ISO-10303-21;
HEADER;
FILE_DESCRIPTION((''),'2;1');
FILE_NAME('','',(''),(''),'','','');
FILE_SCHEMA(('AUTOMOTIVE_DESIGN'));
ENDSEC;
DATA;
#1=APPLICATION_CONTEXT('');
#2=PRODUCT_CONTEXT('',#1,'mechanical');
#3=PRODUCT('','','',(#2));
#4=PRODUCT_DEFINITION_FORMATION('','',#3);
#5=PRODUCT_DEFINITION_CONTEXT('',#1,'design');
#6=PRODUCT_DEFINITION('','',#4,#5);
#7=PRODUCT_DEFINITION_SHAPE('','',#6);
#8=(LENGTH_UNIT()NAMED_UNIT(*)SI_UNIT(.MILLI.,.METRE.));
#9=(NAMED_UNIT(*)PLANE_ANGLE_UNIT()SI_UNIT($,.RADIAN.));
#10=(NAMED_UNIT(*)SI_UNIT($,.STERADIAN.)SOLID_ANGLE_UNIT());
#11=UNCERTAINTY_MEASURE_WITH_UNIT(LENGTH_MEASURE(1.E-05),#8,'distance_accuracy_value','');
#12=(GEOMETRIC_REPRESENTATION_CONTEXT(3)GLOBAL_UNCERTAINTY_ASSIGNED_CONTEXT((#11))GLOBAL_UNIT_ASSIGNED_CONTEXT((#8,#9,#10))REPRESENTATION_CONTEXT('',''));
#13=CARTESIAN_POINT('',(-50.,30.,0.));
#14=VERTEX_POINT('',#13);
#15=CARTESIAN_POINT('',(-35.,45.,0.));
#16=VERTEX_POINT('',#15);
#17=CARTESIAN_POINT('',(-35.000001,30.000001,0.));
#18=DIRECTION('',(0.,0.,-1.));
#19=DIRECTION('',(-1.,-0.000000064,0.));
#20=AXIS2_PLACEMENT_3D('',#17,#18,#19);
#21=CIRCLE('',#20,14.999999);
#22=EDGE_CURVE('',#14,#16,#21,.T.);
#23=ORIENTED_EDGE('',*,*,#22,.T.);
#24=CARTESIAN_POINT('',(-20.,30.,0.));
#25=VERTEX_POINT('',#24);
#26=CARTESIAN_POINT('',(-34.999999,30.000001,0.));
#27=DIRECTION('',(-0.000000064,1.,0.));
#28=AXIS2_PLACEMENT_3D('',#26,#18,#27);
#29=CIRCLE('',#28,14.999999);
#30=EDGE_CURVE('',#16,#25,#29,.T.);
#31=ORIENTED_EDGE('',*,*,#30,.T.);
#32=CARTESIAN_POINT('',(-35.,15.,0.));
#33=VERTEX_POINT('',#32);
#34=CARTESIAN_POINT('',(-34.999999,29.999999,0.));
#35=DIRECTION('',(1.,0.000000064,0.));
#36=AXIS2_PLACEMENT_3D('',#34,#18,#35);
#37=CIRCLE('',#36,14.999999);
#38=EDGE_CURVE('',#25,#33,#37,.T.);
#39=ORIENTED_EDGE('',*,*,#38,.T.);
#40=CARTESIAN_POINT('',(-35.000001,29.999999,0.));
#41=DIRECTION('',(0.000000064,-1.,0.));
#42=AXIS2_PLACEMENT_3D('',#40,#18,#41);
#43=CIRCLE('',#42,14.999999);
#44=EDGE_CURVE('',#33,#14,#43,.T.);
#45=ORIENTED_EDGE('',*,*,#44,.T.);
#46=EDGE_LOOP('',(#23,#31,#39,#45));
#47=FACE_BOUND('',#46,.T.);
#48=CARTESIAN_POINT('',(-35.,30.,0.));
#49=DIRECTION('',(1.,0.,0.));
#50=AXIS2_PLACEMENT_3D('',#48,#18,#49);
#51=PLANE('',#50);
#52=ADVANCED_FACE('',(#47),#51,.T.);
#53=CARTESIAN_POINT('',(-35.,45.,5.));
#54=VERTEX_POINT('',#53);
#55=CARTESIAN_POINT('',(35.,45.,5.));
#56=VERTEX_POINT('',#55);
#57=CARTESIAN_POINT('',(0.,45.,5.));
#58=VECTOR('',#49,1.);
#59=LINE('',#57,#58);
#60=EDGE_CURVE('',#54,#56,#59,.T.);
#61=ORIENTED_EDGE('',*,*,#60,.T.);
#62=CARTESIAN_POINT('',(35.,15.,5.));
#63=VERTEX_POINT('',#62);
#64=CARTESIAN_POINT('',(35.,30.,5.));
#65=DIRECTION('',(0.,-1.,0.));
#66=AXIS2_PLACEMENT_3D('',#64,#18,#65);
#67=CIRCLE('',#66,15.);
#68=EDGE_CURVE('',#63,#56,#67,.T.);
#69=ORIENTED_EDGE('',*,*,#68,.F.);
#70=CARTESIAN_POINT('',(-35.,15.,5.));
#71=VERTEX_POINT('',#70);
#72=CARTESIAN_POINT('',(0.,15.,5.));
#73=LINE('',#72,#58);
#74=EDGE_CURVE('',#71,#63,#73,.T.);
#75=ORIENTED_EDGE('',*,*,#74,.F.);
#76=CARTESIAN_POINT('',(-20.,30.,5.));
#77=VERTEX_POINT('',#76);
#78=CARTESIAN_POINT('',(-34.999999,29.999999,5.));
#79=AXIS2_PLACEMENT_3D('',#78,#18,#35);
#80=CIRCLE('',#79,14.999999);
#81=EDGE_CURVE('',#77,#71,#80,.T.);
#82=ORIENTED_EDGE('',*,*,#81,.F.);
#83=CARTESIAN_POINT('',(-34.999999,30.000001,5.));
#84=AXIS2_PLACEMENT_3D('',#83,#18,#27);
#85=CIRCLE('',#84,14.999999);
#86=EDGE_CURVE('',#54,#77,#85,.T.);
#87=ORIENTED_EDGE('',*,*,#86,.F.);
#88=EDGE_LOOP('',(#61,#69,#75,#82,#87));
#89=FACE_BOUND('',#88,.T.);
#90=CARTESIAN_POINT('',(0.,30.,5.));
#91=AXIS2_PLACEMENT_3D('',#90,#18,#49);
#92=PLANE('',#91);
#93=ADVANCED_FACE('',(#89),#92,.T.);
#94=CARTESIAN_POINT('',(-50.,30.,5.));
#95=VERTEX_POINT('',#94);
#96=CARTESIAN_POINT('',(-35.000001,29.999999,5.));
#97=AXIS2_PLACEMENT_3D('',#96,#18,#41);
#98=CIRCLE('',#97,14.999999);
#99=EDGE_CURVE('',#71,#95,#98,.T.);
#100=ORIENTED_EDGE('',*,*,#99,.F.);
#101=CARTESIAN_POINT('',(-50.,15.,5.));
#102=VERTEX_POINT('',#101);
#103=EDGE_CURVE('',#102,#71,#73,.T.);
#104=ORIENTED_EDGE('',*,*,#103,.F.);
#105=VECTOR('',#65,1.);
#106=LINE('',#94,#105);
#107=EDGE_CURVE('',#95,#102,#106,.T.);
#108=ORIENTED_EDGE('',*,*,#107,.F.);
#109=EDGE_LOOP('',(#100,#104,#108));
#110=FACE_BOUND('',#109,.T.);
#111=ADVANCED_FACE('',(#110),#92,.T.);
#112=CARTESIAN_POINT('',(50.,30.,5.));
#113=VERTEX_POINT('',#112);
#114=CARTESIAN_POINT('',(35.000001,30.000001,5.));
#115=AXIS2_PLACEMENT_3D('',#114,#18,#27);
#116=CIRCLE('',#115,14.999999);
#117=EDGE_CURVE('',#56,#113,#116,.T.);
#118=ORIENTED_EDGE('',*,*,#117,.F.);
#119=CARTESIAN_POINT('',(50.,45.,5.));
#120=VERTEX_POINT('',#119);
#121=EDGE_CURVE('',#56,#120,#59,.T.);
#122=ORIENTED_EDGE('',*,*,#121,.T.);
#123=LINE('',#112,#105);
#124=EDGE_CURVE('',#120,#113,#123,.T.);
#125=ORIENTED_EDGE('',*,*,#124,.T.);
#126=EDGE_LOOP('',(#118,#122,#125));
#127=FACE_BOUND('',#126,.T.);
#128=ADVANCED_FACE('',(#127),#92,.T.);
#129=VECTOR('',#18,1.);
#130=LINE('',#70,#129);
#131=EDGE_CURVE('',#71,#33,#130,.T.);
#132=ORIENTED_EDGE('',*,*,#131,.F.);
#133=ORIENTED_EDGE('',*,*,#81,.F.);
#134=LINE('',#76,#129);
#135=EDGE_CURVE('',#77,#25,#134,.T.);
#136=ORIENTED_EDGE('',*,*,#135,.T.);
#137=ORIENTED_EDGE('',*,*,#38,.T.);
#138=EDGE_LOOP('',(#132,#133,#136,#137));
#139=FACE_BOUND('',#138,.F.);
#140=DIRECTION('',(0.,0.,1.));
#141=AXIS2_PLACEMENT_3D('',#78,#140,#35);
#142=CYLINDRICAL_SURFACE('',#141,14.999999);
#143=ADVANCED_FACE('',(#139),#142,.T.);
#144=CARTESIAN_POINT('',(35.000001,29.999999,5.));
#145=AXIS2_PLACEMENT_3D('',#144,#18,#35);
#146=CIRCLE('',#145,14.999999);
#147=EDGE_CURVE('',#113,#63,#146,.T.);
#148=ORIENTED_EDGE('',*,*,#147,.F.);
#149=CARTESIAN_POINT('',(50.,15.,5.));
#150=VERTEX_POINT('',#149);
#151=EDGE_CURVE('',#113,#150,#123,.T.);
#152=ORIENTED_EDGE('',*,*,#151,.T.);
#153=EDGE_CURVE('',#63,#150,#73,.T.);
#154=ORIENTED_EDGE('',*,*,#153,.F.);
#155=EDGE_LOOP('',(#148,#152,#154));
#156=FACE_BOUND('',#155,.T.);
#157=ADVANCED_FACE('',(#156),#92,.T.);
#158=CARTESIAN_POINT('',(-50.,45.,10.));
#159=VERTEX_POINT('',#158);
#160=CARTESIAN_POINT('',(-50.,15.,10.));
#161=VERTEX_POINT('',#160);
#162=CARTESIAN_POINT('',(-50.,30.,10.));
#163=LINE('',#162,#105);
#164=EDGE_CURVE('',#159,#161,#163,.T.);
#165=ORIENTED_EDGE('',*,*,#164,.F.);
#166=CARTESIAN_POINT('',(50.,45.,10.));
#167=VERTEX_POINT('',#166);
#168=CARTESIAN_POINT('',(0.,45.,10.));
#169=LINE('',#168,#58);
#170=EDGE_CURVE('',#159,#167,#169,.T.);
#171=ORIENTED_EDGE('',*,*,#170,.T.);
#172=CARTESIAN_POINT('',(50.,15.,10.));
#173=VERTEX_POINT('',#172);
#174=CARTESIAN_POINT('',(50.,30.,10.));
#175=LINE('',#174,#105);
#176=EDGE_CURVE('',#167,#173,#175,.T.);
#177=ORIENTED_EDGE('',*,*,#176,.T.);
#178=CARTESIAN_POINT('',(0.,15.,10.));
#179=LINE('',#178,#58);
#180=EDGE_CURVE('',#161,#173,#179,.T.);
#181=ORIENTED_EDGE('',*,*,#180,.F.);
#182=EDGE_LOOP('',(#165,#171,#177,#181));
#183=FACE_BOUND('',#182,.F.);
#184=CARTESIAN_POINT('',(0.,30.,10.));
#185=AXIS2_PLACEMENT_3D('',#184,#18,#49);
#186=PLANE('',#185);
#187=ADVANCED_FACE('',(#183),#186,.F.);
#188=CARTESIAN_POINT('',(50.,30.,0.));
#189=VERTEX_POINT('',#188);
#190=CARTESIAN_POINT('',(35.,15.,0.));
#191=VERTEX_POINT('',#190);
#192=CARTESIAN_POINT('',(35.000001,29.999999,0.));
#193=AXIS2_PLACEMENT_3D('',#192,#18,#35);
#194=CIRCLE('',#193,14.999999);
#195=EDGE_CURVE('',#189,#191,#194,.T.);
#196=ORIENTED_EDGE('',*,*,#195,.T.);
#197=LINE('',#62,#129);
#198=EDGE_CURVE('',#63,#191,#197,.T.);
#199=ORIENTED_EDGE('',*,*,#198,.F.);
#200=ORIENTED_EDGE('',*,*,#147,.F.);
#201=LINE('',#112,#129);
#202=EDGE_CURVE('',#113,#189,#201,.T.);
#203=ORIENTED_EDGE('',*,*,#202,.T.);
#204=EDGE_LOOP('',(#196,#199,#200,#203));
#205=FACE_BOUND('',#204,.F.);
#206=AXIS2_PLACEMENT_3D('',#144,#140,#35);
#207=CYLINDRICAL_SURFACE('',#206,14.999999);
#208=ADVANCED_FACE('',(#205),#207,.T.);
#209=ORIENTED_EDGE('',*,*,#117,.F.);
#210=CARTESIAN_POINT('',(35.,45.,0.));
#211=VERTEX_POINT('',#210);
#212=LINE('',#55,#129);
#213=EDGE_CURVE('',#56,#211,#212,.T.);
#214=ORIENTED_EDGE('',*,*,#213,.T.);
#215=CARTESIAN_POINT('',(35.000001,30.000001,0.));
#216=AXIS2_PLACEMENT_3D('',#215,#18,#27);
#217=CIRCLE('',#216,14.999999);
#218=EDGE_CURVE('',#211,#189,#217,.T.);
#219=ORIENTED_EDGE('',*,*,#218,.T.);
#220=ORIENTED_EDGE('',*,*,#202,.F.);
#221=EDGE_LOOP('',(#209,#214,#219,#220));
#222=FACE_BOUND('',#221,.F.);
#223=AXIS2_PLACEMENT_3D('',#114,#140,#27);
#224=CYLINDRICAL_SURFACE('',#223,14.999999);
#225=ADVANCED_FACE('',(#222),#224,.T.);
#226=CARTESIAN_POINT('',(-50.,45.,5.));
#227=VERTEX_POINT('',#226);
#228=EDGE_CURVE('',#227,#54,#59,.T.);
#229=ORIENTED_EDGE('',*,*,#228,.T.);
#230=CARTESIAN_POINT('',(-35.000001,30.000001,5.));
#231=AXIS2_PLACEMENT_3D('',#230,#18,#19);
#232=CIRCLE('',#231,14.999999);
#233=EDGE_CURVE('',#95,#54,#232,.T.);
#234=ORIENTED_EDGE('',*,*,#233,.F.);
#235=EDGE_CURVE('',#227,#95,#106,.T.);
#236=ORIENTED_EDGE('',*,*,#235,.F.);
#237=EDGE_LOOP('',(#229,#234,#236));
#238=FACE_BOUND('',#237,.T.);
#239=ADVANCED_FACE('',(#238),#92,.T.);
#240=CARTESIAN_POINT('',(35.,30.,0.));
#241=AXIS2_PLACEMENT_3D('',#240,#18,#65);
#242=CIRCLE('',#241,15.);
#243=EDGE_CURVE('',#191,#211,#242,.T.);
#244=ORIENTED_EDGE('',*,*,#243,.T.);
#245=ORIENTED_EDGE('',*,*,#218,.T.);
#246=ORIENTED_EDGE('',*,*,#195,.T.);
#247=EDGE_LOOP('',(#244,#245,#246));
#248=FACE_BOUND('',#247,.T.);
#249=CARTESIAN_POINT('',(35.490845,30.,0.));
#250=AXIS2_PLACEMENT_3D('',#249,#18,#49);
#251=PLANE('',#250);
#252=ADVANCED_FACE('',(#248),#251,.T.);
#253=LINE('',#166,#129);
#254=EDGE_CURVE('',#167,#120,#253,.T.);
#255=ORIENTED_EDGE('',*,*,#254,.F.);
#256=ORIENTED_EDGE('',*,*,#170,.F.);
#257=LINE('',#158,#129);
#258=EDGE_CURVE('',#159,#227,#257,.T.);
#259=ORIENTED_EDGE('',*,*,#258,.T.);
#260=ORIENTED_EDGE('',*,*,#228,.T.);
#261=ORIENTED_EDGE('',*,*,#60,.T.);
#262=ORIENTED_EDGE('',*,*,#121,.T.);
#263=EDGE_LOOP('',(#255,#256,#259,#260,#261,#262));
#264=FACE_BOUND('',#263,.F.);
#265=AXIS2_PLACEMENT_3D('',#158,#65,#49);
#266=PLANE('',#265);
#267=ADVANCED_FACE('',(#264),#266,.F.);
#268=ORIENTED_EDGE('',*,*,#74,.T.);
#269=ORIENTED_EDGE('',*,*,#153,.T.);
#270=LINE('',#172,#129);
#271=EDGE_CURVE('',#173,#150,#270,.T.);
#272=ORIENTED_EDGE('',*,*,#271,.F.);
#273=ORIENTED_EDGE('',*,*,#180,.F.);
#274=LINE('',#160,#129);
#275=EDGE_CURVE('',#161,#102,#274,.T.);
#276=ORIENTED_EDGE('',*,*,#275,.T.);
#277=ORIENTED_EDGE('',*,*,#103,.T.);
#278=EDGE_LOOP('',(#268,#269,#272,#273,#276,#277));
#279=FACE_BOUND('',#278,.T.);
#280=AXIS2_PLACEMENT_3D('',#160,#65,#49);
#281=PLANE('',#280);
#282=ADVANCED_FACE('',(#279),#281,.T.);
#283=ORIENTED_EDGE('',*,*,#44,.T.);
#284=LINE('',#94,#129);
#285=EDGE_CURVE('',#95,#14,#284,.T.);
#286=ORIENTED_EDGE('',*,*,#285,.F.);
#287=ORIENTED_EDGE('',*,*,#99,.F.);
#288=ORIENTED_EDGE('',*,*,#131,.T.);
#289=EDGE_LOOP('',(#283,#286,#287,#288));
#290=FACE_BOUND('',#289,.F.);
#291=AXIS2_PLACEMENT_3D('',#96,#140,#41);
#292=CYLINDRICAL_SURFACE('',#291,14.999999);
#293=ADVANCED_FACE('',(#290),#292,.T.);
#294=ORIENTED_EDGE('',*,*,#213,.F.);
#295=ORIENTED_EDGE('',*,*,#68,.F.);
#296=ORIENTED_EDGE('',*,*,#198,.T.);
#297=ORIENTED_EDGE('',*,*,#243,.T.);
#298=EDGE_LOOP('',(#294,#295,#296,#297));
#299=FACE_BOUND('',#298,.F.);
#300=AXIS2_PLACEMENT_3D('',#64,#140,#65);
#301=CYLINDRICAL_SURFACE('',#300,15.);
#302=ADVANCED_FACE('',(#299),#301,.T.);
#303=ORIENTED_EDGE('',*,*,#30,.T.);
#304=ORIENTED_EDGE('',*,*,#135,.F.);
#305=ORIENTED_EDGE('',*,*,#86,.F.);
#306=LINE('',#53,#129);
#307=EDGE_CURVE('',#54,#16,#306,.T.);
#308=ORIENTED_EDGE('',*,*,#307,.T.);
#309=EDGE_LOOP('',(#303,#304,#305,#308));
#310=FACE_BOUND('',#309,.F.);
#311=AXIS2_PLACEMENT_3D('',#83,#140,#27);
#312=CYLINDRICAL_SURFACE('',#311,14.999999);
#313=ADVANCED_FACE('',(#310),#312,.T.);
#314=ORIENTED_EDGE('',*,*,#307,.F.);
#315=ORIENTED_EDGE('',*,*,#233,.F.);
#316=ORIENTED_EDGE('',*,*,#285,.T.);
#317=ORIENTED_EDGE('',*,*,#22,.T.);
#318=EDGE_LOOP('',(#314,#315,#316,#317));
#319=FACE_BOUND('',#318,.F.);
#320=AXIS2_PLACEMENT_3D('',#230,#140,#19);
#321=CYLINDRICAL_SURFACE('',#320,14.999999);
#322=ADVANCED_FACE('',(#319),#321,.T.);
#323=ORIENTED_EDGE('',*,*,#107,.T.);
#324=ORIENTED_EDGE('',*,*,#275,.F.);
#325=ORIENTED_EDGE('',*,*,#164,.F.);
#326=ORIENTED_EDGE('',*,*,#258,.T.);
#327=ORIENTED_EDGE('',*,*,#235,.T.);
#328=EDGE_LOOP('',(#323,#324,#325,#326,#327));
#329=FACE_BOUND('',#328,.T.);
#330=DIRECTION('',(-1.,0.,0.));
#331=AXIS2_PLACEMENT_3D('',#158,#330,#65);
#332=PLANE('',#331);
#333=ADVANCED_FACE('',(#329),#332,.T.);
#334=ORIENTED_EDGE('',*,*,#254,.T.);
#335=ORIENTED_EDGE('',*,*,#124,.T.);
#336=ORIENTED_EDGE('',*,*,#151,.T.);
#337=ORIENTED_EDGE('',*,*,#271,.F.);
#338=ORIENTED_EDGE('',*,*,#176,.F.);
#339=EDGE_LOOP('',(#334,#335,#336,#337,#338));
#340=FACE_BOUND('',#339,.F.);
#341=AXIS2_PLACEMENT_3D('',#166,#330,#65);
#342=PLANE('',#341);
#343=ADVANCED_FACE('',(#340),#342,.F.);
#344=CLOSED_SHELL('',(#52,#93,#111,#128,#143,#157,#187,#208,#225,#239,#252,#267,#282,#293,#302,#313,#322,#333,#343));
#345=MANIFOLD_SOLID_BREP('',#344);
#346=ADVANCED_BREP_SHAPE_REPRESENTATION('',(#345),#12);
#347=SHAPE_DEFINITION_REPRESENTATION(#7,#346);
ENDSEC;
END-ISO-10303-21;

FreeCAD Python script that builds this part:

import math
import FreeCAD as App
import Part
import Sketcher
from FreeCAD import Vector
Q = App.Units.Quantity

doc = App.newDocument("Part")
body = doc.addObject("PartDesign::Body", "Body")

# Sketch on XY plane
sketch1 = body.newObject("Sketcher::SketchObject", "Sketch")
sketch1.AttachmentSupport = (doc.getObject("XY_Plane"), [""])
sketch1.MapMode = "FlatFace"
sketch1.addGeometry(Part.LineSegment(Vector(-50, 15, 0), Vector(-50, -15, 0)), False)
sketch1.addGeometry(Part.LineSegment(Vector(-50, -15, 0), Vector(50, -15, 0)), False)
sketch1.addGeometry(Part.LineSegment(Vector(50, -15, 0), Vector(50, 15, 0)), False)
sketch1.addGeometry(Part.LineSegment(Vector(50, 15, 0), Vector(-50, 15, 0)), False)
sketch1.addConstraint(Sketcher.Constraint("Coincident", 0, 2, 1, 1))
sketch1.addConstraint(Sketcher.Constraint("Coincident", 1, 2, 2, 1))
sketch1.addConstraint(Sketcher.Constraint("Coincident", 2, 2, 3, 1))
sketch1.addConstraint(Sketcher.Constraint("Coincident", 3, 2, 0, 1))
sketch1.addConstraint(Sketcher.Constraint("Vertical", 0))
sketch1.addConstraint(Sketcher.Constraint("Horizontal", 1))
sketch1.addConstraint(Sketcher.Constraint("Vertical", 2))
sketch1.addConstraint(Sketcher.Constraint("Horizontal", 3))
sketch1.addConstraint(Sketcher.Constraint("Symmetric", 0, 2, 2, 2, -1, 1))
sketch1.addConstraint(Sketcher.Constraint("DistanceX", 1, 1, 1, 2, Q("100 mm")))
sketch1.addConstraint(Sketcher.Constraint("DistanceY", 0, 2, 0, 1, Q("30 mm")))
pad1 = body.newObject("PartDesign::Pad", "Pad")
pad1.Profile = sketch1
pad1.Length = 5

# Sketch on XY plane
sketch2 = body.newObject("Sketcher::SketchObject", "Sketch001")
sketch2.AttachmentSupport = (doc.getObject("XY_Plane"), [""])
sketch2.MapMode = "FlatFace"
sketch2.AttachmentOffset = App.Placement(Vector(0, 0, 5), App.Rotation())
sketch2.addGeometry(Part.ArcOfCircle(Part.Circle(Vector(35, 0, 0), Vector(0, 0, 1), 15), math.radians(-90), math.radians(0)), False)
sketch2.addGeometry(Part.ArcOfCircle(Part.Circle(Vector(35, 0, 0), Vector(0, 0, 1), 15), math.radians(0), math.radians(90)), False)
sketch2.addGeometry(Part.ArcOfCircle(Part.Circle(Vector(35, 0, 0), Vector(0, 0, 1), 15), math.radians(90), math.radians(270)), False)
sketch2.addGeometry(Part.ArcOfCircle(Part.Circle(Vector(-35, 0, 0), Vector(0, 0, 1), 15), math.radians(0), math.radians(90)), False)
sketch2.addGeometry(Part.ArcOfCircle(Part.Circle(Vector(-35, 0, 0), Vector(0, 0, 1), 15), math.radians(90), math.radians(180)), False)
sketch2.addGeometry(Part.ArcOfCircle(Part.Circle(Vector(-35, 0, 0), Vector(0, 0, 1), 15), math.radians(180), math.radians(270)), False)
sketch2.addGeometry(Part.ArcOfCircle(Part.Circle(Vector(-35, 0, 0), Vector(0, 0, 1), 15), math.radians(-90), math.radians(0)), False)
sketch2.addConstraint(Sketcher.Constraint("Tangent", 0, 2, 1, 1))
sketch2.addConstraint(Sketcher.Constraint("Tangent", 1, 2, 2, 1))
sketch2.addConstraint(Sketcher.Constraint("Tangent", 2, 2, 0, 1))
sketch2.addConstraint(Sketcher.Constraint("Tangent", 3, 2, 4, 1))
sketch2.addConstraint(Sketcher.Constraint("Tangent", 4, 2, 5, 1))
sketch2.addConstraint(Sketcher.Constraint("Tangent", 5, 2, 6, 1))
sketch2.addConstraint(Sketcher.Constraint("Tangent", 6, 2, 3, 1))
sketch2.addConstraint(Sketcher.Constraint("Equal", 2, 3))
sketch2.addConstraint(Sketcher.Constraint("Equal", 3, 4))
sketch2.addConstraint(Sketcher.Constraint("Symmetric", 0, 3, 3, 3, -1, 1))
sketch2.addConstraint(Sketcher.Constraint("Symmetric", 1, 2, 3, 2, -2))
sketch2.addConstraint(Sketcher.Constraint("PointOnObject", 0, 2, -1))
sketch2.addConstraint(Sketcher.Constraint("PointOnObject", 4, 2, -1))
sketch2.addConstraint(Sketcher.Constraint("PointOnObject", 6, 2, -1))
sketch2.addConstraint(Sketcher.Constraint("Vertical", 2, 3, 1, 2))
sketch2.addConstraint(Sketcher.Constraint("Vertical", 1, 2, 2, 2))
sketch2.addConstraint(Sketcher.Constraint("Vertical", 3, 2, 5, 2))
sketch2.addConstraint(Sketcher.Constraint("Radius", 0, Q("14.999999 mm")))
sketch2.addConstraint(Sketcher.Constraint("DistanceX", -1, 1, 0, 3, Q("35.000001 mm")))
pad2 = body.newObject("PartDesign::Pad", "Pad001")
pad2.Profile = sketch2
pad2.Length = 5
body2 = doc.addObject("PartDesign::Body", "Body001")
doc.recompute()

body.Placement = App.Placement(Vector(0, 30, 10), App.Rotation(Vector(-1, 0, 0), 180))
boolean = body2.newObject("PartDesign::Boolean", "Boolean")
boolean.Type = "Fuse"
boolean.addObjects([body])

doc.recompute()
